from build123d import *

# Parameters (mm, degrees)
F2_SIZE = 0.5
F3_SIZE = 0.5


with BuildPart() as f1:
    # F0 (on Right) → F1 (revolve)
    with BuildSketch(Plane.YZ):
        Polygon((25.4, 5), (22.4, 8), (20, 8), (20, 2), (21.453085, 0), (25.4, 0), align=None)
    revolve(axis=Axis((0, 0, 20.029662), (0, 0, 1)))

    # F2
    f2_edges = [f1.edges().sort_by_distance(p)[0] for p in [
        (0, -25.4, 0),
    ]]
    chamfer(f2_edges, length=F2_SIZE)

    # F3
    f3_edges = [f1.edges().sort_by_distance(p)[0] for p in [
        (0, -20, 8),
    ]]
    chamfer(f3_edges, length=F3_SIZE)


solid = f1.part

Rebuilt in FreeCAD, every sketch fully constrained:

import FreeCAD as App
import Part
import Sketcher
from FreeCAD import Vector
Q = App.Units.Quantity


def edges_at(feature, points):
    """Names of the edges that pass closest to the given points."""
    edges = feature.Shape.Edges
    near = lambda p: min(range(len(edges)), key=lambda i: edges[i].distToShape(Part.Vertex(*p))[0])
    return sorted({f"Edge{near(p) + 1}" for p in points})

doc = App.newDocument("Part")
body = doc.addObject("PartDesign::Body", "Body")

sketch1 = doc.addObject("Sketcher::SketchObject", "Sketch")
body.addObject(sketch1)
sketch1.AttachmentSupport = (doc.YZ_Plane, [""])
sketch1.MapMode = "FlatFace"
sketch1.addGeometry(Part.LineSegment(Vector(25.4, 5, 0), Vector(22.4, 8, 0)), False)
sketch1.addGeometry(Part.LineSegment(Vector(22.4, 8, 0), Vector(20, 8, 0)), False)
sketch1.addGeometry(Part.LineSegment(Vector(20, 8, 0), Vector(20, 2, 0)), False)
sketch1.addGeometry(Part.LineSegment(Vector(20, 2, 0), Vector(21.5, 0, 0)), False)
sketch1.addGeometry(Part.LineSegment(Vector(21.5, 0, 0), Vector(25.4, 0, 0)), False)
sketch1.addGeometry(Part.LineSegment(Vector(25.4, 0, 0), Vector(25.4, 5, 0)), False)
sketch1.addConstraint(Sketcher.Constraint("Coincident", 0, 2, 1, 1))
sketch1.addConstraint(Sketcher.Constraint("Coincident", 1, 2, 2, 1))
sketch1.addConstraint(Sketcher.Constraint("Coincident", 2, 2, 3, 1))
sketch1.addConstraint(Sketcher.Constraint("Coincident", 3, 2, 4, 1))
sketch1.addConstraint(Sketcher.Constraint("Coincident", 4, 2, 5, 1))
sketch1.addConstraint(Sketcher.Constraint("Coincident", 5, 2, 0, 1))
sketch1.addConstraint(Sketcher.Constraint("Horizontal", 1))
sketch1.addConstraint(Sketcher.Constraint("Vertical", 2))
sketch1.addConstraint(Sketcher.Constraint("Horizontal", 4))
sketch1.addConstraint(Sketcher.Constraint("Vertical", 5))
sketch1.addConstraint(Sketcher.Constraint("PointOnObject", 3, 2, -1))
sketch1.addConstraint(Sketcher.Constraint("DistanceY", 2, 2, 2, 1, Q("6 mm")))
sketch1.addConstraint(Sketcher.Constraint("DistanceY", 5, 1, 5, 2, Q("5 mm")))
sketch1.addConstraint(Sketcher.Constraint("Angle", 0, Q("135 deg")))
sketch1.addConstraint(Sketcher.Constraint("Angle", 3, Q("-54.000001 deg")))
sketch1.addConstraint(Sketcher.Constraint("DistanceX", 1, 2, 1, 1, Q("2.4 mm")))
sketch1.addConstraint(Sketcher.Constraint("DistanceY", -1, 1, 0, 2, Q("8 mm")))
sketch1.addConstraint(Sketcher.Constraint("DistanceX", -1, 1, 1, 2, Q("20 mm")))
revolution = doc.addObject("PartDesign::Revolution", "Revolution")
body.addObject(revolution)
revolution.Profile = sketch1
revolution.ReferenceAxis = (sketch1, ["V_Axis"])
revolution.Angle = 360
doc.recompute()

chamfer = doc.addObject("PartDesign::Chamfer", "Chamfer")
body.addObject(chamfer)
chamfer.Base = (revolution, edges_at(revolution, [(0, -25.4, 0)]))
chamfer.Size = 0.5
doc.recompute()

chamfer2 = doc.addObject("PartDesign::Chamfer", "Chamfer001")
body.addObject(chamfer2)
chamfer2.Base = (chamfer, edges_at(chamfer, [(0, -20, 8)]))
chamfer2.Size = 0.5

doc.recompute()
